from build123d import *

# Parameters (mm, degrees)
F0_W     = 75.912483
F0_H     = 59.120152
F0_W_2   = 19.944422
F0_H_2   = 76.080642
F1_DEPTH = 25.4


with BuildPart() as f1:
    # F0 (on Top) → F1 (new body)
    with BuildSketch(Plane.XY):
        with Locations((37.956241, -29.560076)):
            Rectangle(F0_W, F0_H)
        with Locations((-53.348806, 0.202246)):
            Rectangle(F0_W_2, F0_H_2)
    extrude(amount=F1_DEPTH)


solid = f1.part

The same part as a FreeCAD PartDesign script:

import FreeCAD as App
import Part
import Sketcher

V = App.Vector


def add_polygon(sketch, points):
    """Adds a closed chain of lines whose ends are joined by coincident constraints."""
    first, n = sketch.GeometryCount, len(points)
    for a, b in zip(points, points[1:] + points[:1]):
        sketch.addGeometry(Part.LineSegment(App.Vector(*a, 0), App.Vector(*b, 0)), False)
    for i in range(n):
        sketch.addConstraint(Sketcher.Constraint("Coincident", first + i, 2, first + (i + 1) % n, 1))

doc = App.newDocument("Part")
params = doc.addObject("Spreadsheet::Sheet", "Params")
for row, (alias, value) in enumerate([
    ("pad1_length", "1 in"),
], start=1):
    params.set(f"A{row}", alias)
    params.set(f"B{row}", "=" + value)
    params.setAlias(f"B{row}", alias)

body = doc.addObject("PartDesign::Body", "Body")
body.AllowCompound = True

# Sketch on XY plane
sketch1 = doc.addObject("Sketcher::SketchObject", "Sketch")
body.addObject(sketch1)
sketch1.AttachmentSupport = (doc.XY_Plane, [""])
sketch1.MapMode = "FlatFace"
add_polygon(sketch1, [(0, 0), (0, -59), (76, -59), (76, 0)])  # lines 0-3
add_polygon(sketch1, [(-63, 38), (-63, -38), (-43, -38), (-43, 38)])  # lines 4-7
sketch1.addConstraint([
    Sketcher.Constraint("Vertical", 0),
    Sketcher.Constraint("Horizontal", 1),
    Sketcher.Constraint("Vertical", 2),
    Sketcher.Constraint("Horizontal", 3),
    Sketcher.Constraint("Vertical", 4),
    Sketcher.Constraint("Horizontal", 5),
    Sketcher.Constraint("Vertical", 6),
    Sketcher.Constraint("Horizontal", 7),
    Sketcher.Constraint("Coincident", 3, 2, -1, 1),
    Sketcher.Constraint("DistanceX", 5, 1, 5, 2, 19.944422),
    Sketcher.Constraint("DistanceY", 0, 2, 0, 1, 59.120152),
    Sketcher.Constraint("DistanceX", 4, 2, 1, 2, 139.233499),
    Sketcher.Constraint("DistanceX", 1, 1, 1, 2, 75.912483),
    Sketcher.Constraint("DistanceY", 4, 2, 4, 1, 76.080642),
    Sketcher.Constraint("DistanceY", 0, 2, 6, 2, 97.362719),
])
pad1 = doc.addObject("PartDesign::Pad", "Pad")
body.addObject(pad1)
pad1.Profile = sketch1
pad1.setExpression("Length", "Params.pad1_length")

doc.recompute()
